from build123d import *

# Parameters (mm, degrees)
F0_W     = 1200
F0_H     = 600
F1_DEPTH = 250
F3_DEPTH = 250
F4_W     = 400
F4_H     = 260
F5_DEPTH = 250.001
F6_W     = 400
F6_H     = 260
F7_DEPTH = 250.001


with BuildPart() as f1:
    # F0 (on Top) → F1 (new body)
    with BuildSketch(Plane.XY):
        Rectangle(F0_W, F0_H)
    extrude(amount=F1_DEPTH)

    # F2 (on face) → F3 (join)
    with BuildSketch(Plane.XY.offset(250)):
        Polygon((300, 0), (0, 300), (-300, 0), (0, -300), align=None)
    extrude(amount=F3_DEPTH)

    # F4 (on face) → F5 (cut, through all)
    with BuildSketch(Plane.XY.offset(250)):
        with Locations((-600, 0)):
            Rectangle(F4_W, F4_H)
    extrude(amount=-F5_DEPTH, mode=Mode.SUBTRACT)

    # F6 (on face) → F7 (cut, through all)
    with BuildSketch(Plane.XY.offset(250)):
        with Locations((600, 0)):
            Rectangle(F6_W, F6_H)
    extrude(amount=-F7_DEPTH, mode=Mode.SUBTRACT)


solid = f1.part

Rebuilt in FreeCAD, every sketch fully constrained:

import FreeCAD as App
import Part
import Sketcher

V = App.Vector

doc = App.newDocument("Part")
body = doc.addObject("PartDesign::Body", "Body")

sketch1 = body.newObject("Sketcher::SketchObject", "Sketch")
sketch1.AttachmentSupport = (doc.getObject("XY_Plane"), [""])
sketch1.MapMode = "FlatFace"
sketch1.addGeometry([
    Part.LineSegment(V(-600, 300, 0), V(-600, -300, 0)),
    Part.LineSegment(V(-600, -300, 0), V(600, -300, 0)),
    Part.LineSegment(V(600, -300, 0), V(600, 300, 0)),
    Part.LineSegment(V(600, 300, 0), V(-600, 300, 0)),
], False)
sketch1.addConstraint([
    Sketcher.Constraint("Coincident", 0, 2, 1, 1),
    Sketcher.Constraint("Coincident", 1, 2, 2, 1),
    Sketcher.Constraint("Coincident", 2, 2, 3, 1),
    Sketcher.Constraint("Coincident", 3, 2, 0, 1),
    Sketcher.Constraint("Vertical", 0),
    Sketcher.Constraint("Horizontal", 1),
    Sketcher.Constraint("Vertical", 2),
    Sketcher.Constraint("Horizontal", 3),
    Sketcher.Constraint("Symmetric", 0, 2, 2, 2, -1, 1),
    Sketcher.Constraint("DistanceX", 1, 1, 1, 2, 1200.0),
    Sketcher.Constraint("DistanceY", 0, 2, 0, 1, 600.0),
])
pad1 = body.newObject("PartDesign::Pad", "Pad")
pad1.Profile = sketch1
pad1.Length = 250

sketch2 = body.newObject("Sketcher::SketchObject", "Sketch001")
sketch2.AttachmentSupport = (doc.getObject("XY_Plane"), [""])
sketch2.MapMode = "FlatFace"
sketch2.AttachmentOffset = App.Placement(V(0, 0, 250), App.Rotation())
sketch2.addGeometry([
    Part.LineSegment(V(300, 0, 0), V(0, 300, 0)),
    Part.LineSegment(V(0, 300, 0), V(-300, 0, 0)),
    Part.LineSegment(V(-300, 0, 0), V(0, -300, 0)),
    Part.LineSegment(V(0, -300, 0), V(300, 0, 0)),
], False)
sketch2.addConstraint([
    Sketcher.Constraint("Coincident", 0, 2, 1, 1),
    Sketcher.Constraint("Coincident", 1, 2, 2, 1),
    Sketcher.Constraint("Coincident", 2, 2, 3, 1),
    Sketcher.Constraint("Coincident", 3, 2, 0, 1),
    Sketcher.Constraint("Symmetric", 0, 2, 2, 2, -1, 1),
    Sketcher.Constraint("Symmetric", 1, 2, 3, 2, -1, 1),
    Sketcher.Constraint("PointOnObject", 0, 2, -2),
    Sketcher.Constraint("PointOnObject", 1, 2, -1),
    Sketcher.Constraint("Perpendicular", 0, 1),
    Sketcher.Constraint("DistanceY", -1, 1, 0, 2, 300.0),
])
pad2 = body.newObject("PartDesign::Pad", "Pad001")
pad2.Profile = sketch2
pad2.Length = 250

sketch3 = body.newObject("Sketcher::SketchObject", "Sketch002")
sketch3.AttachmentSupport = (doc.getObject("XY_Plane"), [""])
sketch3.MapMode = "FlatFace"
sketch3.AttachmentOffset = App.Placement(V(0, 0, 250), App.Rotation())
sketch3.addGeometry([
    Part.LineSegment(V(-800, 130, 0), V(-800, -130, 0)),
    Part.LineSegment(V(-800, -130, 0), V(-400, -130, 0)),
    Part.LineSegment(V(-400, -130, 0), V(-400, 130, 0)),
    Part.LineSegment(V(-400, 130, 0), V(-800, 130, 0)),
], False)
sketch3.addConstraint([
    Sketcher.Constraint("Coincident", 0, 2, 1, 1),
    Sketcher.Constraint("Coincident", 1, 2, 2, 1),
    Sketcher.Constraint("Coincident", 2, 2, 3, 1),
    Sketcher.Constraint("Coincident", 3, 2, 0, 1),
    Sketcher.Constraint("Vertical", 0),
    Sketcher.Constraint("Horizontal", 1),
    Sketcher.Constraint("Vertical", 2),
    Sketcher.Constraint("Horizontal", 3),
    Sketcher.Constraint("DistanceX", 1, 1, 1, 2, 400.0),
    Sketcher.Constraint("DistanceY", 0, 2, 0, 1, 260.0),
    Sketcher.Constraint("DistanceX", 0, 2, -1, 1, 800.0),
    Sketcher.Constraint("DistanceY", 0, 2, -1, 1, 130.0),
])
pocket1 = body.newObject("PartDesign::Pocket", "Pocket")
pocket1.Profile = sketch3
pocket1.Type = "ThroughAll"

sketch4 = body.newObject("Sketcher::SketchObject", "Sketch003")
sketch4.AttachmentSupport = (doc.getObject("XY_Plane"), [""])
sketch4.MapMode = "FlatFace"
sketch4.AttachmentOffset = App.Placement(V(0, 0, 250), App.Rotation())
sketch4.addGeometry([
    Part.LineSegment(V(400, 130, 0), V(400, -130, 0)),
    Part.LineSegment(V(400, -130, 0), V(800, -130, 0)),
    Part.LineSegment(V(800, -130, 0), V(800, 130, 0)),
    Part.LineSegment(V(800, 130, 0), V(400, 130, 0)),
], False)
sketch4.addConstraint([
    Sketcher.Constraint("Coincident", 0, 2, 1, 1),
    Sketcher.Constraint("Coincident", 1, 2, 2, 1),
    Sketcher.Constraint("Coincident", 2, 2, 3, 1),
    Sketcher.Constraint("Coincident", 3, 2, 0, 1),
    Sketcher.Constraint("Vertical", 0),
    Sketcher.Constraint("Horizontal", 1),
    Sketcher.Constraint("Vertical", 2),
    Sketcher.Constraint("Horizontal", 3),
    Sketcher.Constraint("DistanceX", 1, 1, 1, 2, 400.0),
    Sketcher.Constraint("DistanceY", 0, 2, 0, 1, 260.0),
    Sketcher.Constraint("DistanceX", -1, 1, 0, 2, 400.0),
    Sketcher.Constraint("DistanceY", 0, 2, -1, 1, 130.0),
])
pocket2 = body.newObject("PartDesign::Pocket", "Pocket001")
pocket2.Profile = sketch4
pocket2.Type = "ThroughAll"

doc.recompute()
